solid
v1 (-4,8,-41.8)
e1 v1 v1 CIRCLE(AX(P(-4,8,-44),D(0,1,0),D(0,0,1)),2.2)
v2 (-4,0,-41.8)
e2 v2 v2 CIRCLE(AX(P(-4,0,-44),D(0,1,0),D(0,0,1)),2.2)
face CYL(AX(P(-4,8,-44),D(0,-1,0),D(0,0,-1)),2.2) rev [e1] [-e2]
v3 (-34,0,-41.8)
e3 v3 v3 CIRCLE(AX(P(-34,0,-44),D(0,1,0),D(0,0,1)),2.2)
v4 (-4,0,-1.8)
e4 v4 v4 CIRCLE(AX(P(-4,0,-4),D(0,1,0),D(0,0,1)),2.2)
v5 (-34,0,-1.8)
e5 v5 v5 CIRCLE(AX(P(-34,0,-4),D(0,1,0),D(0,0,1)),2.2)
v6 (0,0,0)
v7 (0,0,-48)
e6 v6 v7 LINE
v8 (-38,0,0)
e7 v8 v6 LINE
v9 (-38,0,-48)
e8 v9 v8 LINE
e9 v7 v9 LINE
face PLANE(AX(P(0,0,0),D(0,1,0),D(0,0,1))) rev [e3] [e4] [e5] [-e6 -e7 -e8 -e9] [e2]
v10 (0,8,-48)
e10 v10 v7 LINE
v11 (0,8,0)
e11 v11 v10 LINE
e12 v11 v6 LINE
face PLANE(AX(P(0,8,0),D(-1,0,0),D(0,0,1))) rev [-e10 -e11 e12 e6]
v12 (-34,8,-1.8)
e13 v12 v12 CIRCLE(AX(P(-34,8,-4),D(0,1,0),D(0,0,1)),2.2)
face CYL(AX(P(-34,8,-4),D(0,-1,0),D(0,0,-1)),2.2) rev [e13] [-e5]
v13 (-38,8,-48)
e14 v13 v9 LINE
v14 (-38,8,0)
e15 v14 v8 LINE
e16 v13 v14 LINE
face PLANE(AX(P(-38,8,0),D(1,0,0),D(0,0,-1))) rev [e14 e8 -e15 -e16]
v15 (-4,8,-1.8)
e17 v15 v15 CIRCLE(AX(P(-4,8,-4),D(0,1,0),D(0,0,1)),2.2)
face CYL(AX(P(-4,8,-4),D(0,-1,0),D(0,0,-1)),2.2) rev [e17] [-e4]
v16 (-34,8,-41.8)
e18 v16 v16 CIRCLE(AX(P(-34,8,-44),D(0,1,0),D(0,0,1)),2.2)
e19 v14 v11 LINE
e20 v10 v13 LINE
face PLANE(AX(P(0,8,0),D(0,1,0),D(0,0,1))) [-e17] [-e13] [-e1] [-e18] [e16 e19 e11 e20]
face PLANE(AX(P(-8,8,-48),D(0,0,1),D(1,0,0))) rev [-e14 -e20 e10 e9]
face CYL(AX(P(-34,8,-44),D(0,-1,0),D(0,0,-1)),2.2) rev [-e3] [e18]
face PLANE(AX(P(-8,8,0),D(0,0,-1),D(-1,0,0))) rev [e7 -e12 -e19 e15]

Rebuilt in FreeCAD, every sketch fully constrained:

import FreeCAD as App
import Part
import Sketcher
Q = App.Units.Quantity

doc = App.newDocument("Part")
params = doc.addObject("Spreadsheet::Sheet", "Params")
for row, (alias, value) in enumerate([
    ("sketch1_diameter", "4.4 mm"),
    ("sketch1_width", "38 mm"),
    ("sketch1_height", "48 mm"),
    ("pad1_length", "8 mm"),
], start=1):
    params.set(f"A{row}", alias)
    params.set(f"B{row}", "=" + value)
    params.setAlias(f"B{row}", alias)

body = doc.addObject("PartDesign::Body", "Body")

sketch1 = doc.addObject("Sketcher::SketchObject", "Sketch")
body.addObject(sketch1)
sketch1.AttachmentSupport = (doc.XZ_Plane, [""])
sketch1.MapMode = "FlatFace"
sketch1.addGeometry(Part.LineSegment(App.Vector(0, 0, 0), App.Vector(0, -48, 0)), False)
sketch1.addGeometry(Part.LineSegment(App.Vector(0, -48, 0), App.Vector(-38, -48, 0)), False)
sketch1.addGeometry(Part.LineSegment(App.Vector(-38, -48, 0), App.Vector(-38, 0, 0)), False)
sketch1.addGeometry(Part.LineSegment(App.Vector(-38, 0, 0), App.Vector(0, 0, 0)), False)
sketch1.addGeometry(Part.Circle(App.Vector(-34, -4, 0), App.Vector(0, 0, 1), 2.2), False)
sketch1.addGeometry(Part.Circle(App.Vector(-4, -4, 0), App.Vector(0, 0, 1), 2.2), False)
sketch1.addGeometry(Part.Circle(App.Vector(-34, -44, 0), App.Vector(0, 0, 1), 2.2), False)
sketch1.addGeometry(Part.Circle(App.Vector(-4, -44, 0), App.Vector(0, 0, 1), 2.2), False)
sketch1.addConstraint(Sketcher.Constraint("Coincident", 0, 2, 1, 1))
sketch1.addConstraint(Sketcher.Constraint("Coincident", 1, 2, 2, 1))
sketch1.addConstraint(Sketcher.Constraint("Coincident", 2, 2, 3, 1))
sketch1.addConstraint(Sketcher.Constraint("Coincident", 3, 2, 0, 1))
sketch1.addConstraint(Sketcher.Constraint("Vertical", 0))
sketch1.addConstraint(Sketcher.Constraint("Horizontal", 1))
sketch1.addConstraint(Sketcher.Constraint("Vertical", 2))
sketch1.addConstraint(Sketcher.Constraint("Horizontal", 3))
sketch1.addConstraint(Sketcher.Constraint("Coincident", 3, 2, -1, 1))
sketch1.addConstraint(Sketcher.Constraint("Equal", 4, 5))
sketch1.addConstraint(Sketcher.Constraint("Equal", 5, 6))
sketch1.addConstraint(Sketcher.Constraint("Equal", 6, 7))
sketch1.addConstraint(Sketcher.Constraint("Horizontal", 4, 3, 5, 3))
sketch1.addConstraint(Sketcher.Constraint("Horizontal", 6, 3, 7, 3))
sketch1.addConstraint(Sketcher.Constraint("Vertical", 4, 3, 6, 3))
sketch1.addConstraint(Sketcher.Constraint("Vertical", 5, 3, 7, 3))
sketch1.addConstraint(Sketcher.Constraint("Diameter", 4, Q("4.4 mm")))
sketch1.addConstraint(Sketcher.Constraint("DistanceX", 1, 2, 1, 1, Q("38 mm")))
sketch1.addConstraint(Sketcher.Constraint("DistanceY", 0, 2, 0, 1, Q("48 mm")))
sketch1.addConstraint(Sketcher.Constraint("DistanceX", 4, 3, -1, 1, Q("34 mm")))
sketch1.addConstraint(Sketcher.Constraint("DistanceY", 4, 3, -1, 1, Q("4 mm")))
sketch1.addConstraint(Sketcher.Constraint("DistanceX", 5, 3, -1, 1, Q("4 mm")))
sketch1.addConstraint(Sketcher.Constraint("DistanceY", 6, 3, -1, 1, Q("44 mm")))
sketch1.setExpression("Constraints[16]", "Params.sketch1_diameter")
sketch1.setExpression("Constraints[17]", "Params.sketch1_width")
sketch1.setExpression("Constraints[18]", "Params.sketch1_height")
pad1 = doc.addObject("PartDesign::Pad", "Pad")
body.addObject(pad1)
pad1.Profile = sketch1
pad1.setExpression("Length", "Params.pad1_length")
pad1.Reversed = True

doc.recompute()
